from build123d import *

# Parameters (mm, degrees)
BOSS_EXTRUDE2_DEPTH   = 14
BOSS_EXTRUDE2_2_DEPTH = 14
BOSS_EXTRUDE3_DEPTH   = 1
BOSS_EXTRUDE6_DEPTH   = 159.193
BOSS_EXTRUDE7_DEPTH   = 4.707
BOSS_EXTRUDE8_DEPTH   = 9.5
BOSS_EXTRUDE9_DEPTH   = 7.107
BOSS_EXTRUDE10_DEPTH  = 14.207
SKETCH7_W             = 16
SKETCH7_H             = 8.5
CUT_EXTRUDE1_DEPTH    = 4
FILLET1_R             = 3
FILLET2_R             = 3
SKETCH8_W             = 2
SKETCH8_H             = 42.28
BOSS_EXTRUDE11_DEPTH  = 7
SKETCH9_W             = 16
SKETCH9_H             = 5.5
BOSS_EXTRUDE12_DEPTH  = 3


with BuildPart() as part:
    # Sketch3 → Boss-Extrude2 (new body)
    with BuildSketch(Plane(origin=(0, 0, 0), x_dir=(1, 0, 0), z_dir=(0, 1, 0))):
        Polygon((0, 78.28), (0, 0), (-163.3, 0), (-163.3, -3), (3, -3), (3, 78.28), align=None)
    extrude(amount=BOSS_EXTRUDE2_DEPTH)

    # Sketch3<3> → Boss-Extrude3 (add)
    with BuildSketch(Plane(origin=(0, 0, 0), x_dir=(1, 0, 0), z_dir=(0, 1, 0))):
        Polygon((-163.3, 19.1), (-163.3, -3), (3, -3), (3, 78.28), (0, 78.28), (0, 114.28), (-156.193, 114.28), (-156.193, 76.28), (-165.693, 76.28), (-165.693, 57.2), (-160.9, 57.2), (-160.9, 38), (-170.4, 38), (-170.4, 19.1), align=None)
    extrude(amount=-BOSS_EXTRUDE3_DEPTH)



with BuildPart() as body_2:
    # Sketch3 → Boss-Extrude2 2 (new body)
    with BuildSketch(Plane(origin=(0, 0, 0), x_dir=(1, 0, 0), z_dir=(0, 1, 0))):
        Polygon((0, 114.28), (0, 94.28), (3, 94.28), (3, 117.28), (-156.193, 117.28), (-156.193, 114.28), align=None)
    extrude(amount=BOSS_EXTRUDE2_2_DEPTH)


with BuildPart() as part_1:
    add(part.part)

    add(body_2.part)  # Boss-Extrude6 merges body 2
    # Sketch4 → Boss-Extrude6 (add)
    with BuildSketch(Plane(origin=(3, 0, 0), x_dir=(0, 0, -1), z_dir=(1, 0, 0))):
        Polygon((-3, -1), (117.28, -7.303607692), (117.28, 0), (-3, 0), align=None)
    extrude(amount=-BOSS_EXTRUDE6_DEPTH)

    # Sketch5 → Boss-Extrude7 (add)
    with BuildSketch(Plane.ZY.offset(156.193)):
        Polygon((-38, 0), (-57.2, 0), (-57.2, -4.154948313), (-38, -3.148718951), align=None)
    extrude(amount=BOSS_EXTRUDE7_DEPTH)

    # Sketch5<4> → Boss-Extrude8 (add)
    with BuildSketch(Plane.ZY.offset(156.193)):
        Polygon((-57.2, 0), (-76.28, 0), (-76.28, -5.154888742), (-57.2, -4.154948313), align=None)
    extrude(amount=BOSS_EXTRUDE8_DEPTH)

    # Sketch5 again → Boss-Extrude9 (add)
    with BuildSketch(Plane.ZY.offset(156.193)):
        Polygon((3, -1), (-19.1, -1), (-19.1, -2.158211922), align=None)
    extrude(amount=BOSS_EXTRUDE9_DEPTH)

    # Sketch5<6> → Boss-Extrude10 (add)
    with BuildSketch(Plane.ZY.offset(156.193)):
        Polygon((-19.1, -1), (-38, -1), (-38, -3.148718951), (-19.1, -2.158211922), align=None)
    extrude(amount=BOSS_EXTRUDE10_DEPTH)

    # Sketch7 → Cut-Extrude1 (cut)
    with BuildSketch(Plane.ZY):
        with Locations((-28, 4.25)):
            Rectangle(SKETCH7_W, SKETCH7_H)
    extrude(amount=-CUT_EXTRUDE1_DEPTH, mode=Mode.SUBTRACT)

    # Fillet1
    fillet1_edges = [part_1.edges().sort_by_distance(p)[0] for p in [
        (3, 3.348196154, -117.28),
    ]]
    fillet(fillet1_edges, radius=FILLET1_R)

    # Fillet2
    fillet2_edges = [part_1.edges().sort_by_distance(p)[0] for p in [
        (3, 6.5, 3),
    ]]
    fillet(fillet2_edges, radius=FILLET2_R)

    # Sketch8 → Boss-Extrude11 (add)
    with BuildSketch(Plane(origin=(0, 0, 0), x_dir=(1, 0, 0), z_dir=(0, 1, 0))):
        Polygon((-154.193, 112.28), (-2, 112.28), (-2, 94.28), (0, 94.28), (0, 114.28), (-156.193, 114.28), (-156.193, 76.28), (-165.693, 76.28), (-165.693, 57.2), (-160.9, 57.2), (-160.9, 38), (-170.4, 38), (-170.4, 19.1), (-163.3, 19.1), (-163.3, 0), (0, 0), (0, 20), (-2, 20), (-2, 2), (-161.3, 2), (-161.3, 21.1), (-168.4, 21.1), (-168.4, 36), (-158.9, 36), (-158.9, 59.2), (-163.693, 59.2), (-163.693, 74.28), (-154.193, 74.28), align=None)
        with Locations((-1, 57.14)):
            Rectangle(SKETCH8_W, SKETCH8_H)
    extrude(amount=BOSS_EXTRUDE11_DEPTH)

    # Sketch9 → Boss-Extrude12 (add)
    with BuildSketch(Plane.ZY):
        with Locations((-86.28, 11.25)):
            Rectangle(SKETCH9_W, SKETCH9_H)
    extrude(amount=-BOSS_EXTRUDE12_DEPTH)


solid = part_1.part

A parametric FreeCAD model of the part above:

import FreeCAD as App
import Part
import Sketcher

V = App.Vector
Q = App.Units.Quantity


def edges_at(feature, points):
    """Names of the edges that pass closest to the given points."""
    edges = feature.Shape.Edges
    near = lambda p: min(range(len(edges)), key=lambda i: edges[i].distToShape(Part.Vertex(*p))[0])
    return sorted({f"Edge{near(p) + 1}" for p in points})


def add_polygon(sketch, points):
    """Adds a closed chain of lines whose ends are joined by coincident constraints."""
    first, n = sketch.GeometryCount, len(points)
    for a, b in zip(points, points[1:] + points[:1]):
        sketch.addGeometry(Part.LineSegment(App.Vector(*a, 0), App.Vector(*b, 0)), False)
    for i in range(n):
        sketch.addConstraint(Sketcher.Constraint("Coincident", first + i, 2, first + (i + 1) % n, 1))

doc = App.newDocument("Part")
body = doc.addObject("PartDesign::Body", "Body")

# Sketch on XZ plane
sketch1 = doc.addObject("Sketcher::SketchObject", "Sketch")
body.addObject(sketch1)
sketch1.AttachmentSupport = (doc.XZ_Plane, [""])
sketch1.MapMode = "FlatFace"
add_polygon(sketch1, [(0, -78.3), (0, 0), (-163.3, 0), (-163.3, 3), (3, 3), (3, -78.3)])  # lines 0-5
sketch1.addConstraint(Sketcher.Constraint("Vertical", 0))
sketch1.addConstraint(Sketcher.Constraint("Horizontal", 1))
sketch1.addConstraint(Sketcher.Constraint("Vertical", 2))
sketch1.addConstraint(Sketcher.Constraint("Horizontal", 3))
sketch1.addConstraint(Sketcher.Constraint("Vertical", 4))
sketch1.addConstraint(Sketcher.Constraint("Horizontal", 5))
sketch1.addConstraint(Sketcher.Constraint("Coincident", 0, 2, -1, 1))
sketch1.addConstraint(Sketcher.Constraint("Equal", 5, 2))
sketch1.addConstraint(Sketcher.Constraint("DistanceX", 5, 2, 5, 1, 3.0))
sketch1.addConstraint(Sketcher.Constraint("DistanceX", 1, 2, 1, 1, 163.3))
sketch1.addConstraint(Sketcher.Constraint("DistanceY", 0, 1, 0, 2, 78.28))
pad1 = doc.addObject("PartDesign::Pad", "Pad")
body.addObject(pad1)
pad1.Profile = sketch1
pad1.Length = 14
pad1.Reversed = True

# Sketch on XZ plane
sketch2 = doc.addObject("Sketcher::SketchObject", "Sketch001")
body.addObject(sketch2)
sketch2.AttachmentSupport = (doc.XZ_Plane, [""])
sketch2.MapMode = "FlatFace"
add_polygon(sketch2, [(-163.3, -19.1), (-163.3, 3), (3, 3), (3, -78.3), (0, -78.3), (0, -114.3), (-156.2, -114.3), (-156.2, -76.3), (-165.7, -76.3), (-165.7, -57.2), (-160.9, -57.2), (-160.9, -38), (-170.4, -38), (-170.4, -19.1)])  # lines 0-13
sketch2.addConstraint(Sketcher.Constraint("Vertical", 0))
sketch2.addConstraint(Sketcher.Constraint("Horizontal", 1))
sketch2.addConstraint(Sketcher.Constraint("Vertical", 2))
sketch2.addConstraint(Sketcher.Constraint("Horizontal", 3))
sketch2.addConstraint(Sketcher.Constraint("Vertical", 4))
sketch2.addConstraint(Sketcher.Constraint("Horizontal", 5))
sketch2.addConstraint(Sketcher.Constraint("Vertical", 6))
sketch2.addConstraint(Sketcher.Constraint("Horizontal", 7))
sketch2.addConstraint(Sketcher.Constraint("Vertical", 8))
sketch2.addConstraint(Sketcher.Constraint("Horizontal", 9))
sketch2.addConstraint(Sketcher.Constraint("Vertical", 10))
sketch2.addConstraint(Sketcher.Constraint("Horizontal", 11))
sketch2.addConstraint(Sketcher.Constraint("Vertical", 12))
sketch2.addConstraint(Sketcher.Constraint("Horizontal", 13))
sketch2.addConstraint(Sketcher.Constraint("PointOnObject", 3, 2, -2))
sketch2.addConstraint(Sketcher.Constraint("Equal", 7, 11))
sketch2.addConstraint(Sketcher.Constraint("DistanceX", 3, 2, 3, 1, 3.0))
sketch2.addConstraint(Sketcher.Constraint("DistanceY", 4, 2, 4, 1, 36.0))
sketch2.addConstraint(Sketcher.Constraint("DistanceY", 6, 1, 6, 2, 38.0))
sketch2.addConstraint(Sketcher.Constraint("DistanceX", 1, 1, 1, 2, 166.3))
sketch2.addConstraint(Sketcher.Constraint("DistanceX", 7, 2, 7, 1, 9.5))
sketch2.addConstraint(Sketcher.Constraint("DistanceX", 13, 1, 13, 2, 7.1))
sketch2.addConstraint(Sketcher.Constraint("DistanceY", 0, 1, 0, 2, 22.1))
sketch2.addConstraint(Sketcher.Constraint("DistanceY", 10, 1, 10, 2, 19.2))
sketch2.addConstraint(Sketcher.Constraint("DistanceY", 12, 1, 12, 2, 18.9))
sketch2.addConstraint(Sketcher.Constraint("DistanceY", -1, 1, 0, 2, 3.0))
sketch2.addConstraint(Sketcher.Constraint("DistanceY", 2, 2, 2, 1, 81.28))
sketch2.addConstraint(Sketcher.Constraint("DistanceX", 5, 2, 5, 1, 156.193))
pad2 = doc.addObject("PartDesign::Pad", "Pad001")
body.addObject(pad2)
pad2.Profile = sketch2
pad2.Length = 1
body2 = doc.addObject("PartDesign::Body", "Body001")

# Sketch on XZ plane
sketch3 = doc.addObject("Sketcher::SketchObject", "Sketch002")
body2.addObject(sketch3)
sketch3.AttachmentSupport = (doc.getObject("XZ_Plane001"), [""])
sketch3.MapMode = "FlatFace"
add_polygon(sketch3, [(0, -114.3), (0, -94.3), (3, -94.3), (3, -117.3), (-156.2, -117.3), (-156.2, -114.3)])  # lines 0-5
sketch3.addConstraint(Sketcher.Constraint("Vertical", 0))
sketch3.addConstraint(Sketcher.Constraint("Horizontal", 1))
sketch3.addConstraint(Sketcher.Constraint("Vertical", 2))
sketch3.addConstraint(Sketcher.Constraint("Horizontal", 3))
sketch3.addConstraint(Sketcher.Constraint("Vertical", 4))
sketch3.addConstraint(Sketcher.Constraint("Horizontal", 5))
sketch3.addConstraint(Sketcher.Constraint("PointOnObject", 0, 2, -2))
sketch3.addConstraint(Sketcher.Constraint("Equal", 1, 4))
sketch3.addConstraint(Sketcher.Constraint("DistanceX", 1, 1, 1, 2, 3.0))
sketch3.addConstraint(Sketcher.Constraint("DistanceY", 0, 1, 0, 2, 20.0))
sketch3.addConstraint(Sketcher.Constraint("DistanceX", 3, 2, 3, 1, 159.193))
sketch3.addConstraint(Sketcher.Constraint("DistanceY", 0, 2, -1, 1, 94.28))
pad3 = doc.addObject("PartDesign::Pad", "Pad002")
body2.addObject(pad3)
pad3.Profile = sketch3
pad3.Length = 14
pad3.Reversed = True
body.AllowCompound = True
doc.recompute()

boolean = doc.addObject("PartDesign::Boolean", "Boolean")
body.addObject(boolean)
boolean.Type = "Fuse"
boolean.addObjects([body2])

# Sketch on YZ plane
sketch4 = doc.addObject("Sketcher::SketchObject", "Sketch003")
body.addObject(sketch4)
sketch4.AttachmentSupport = (doc.YZ_Plane, [""])
sketch4.MapMode = "FlatFace"
sketch4.AttachmentOffset = App.Placement(V(0, 0, 3), App.Rotation())
add_polygon(sketch4, [(-1, 3), (-7.3, -117.3), (0, -117.3), (0, 3)])  # lines 0-3
sketch4.addConstraint(Sketcher.Constraint("Horizontal", 1))
sketch4.addConstraint(Sketcher.Constraint("Vertical", 2))
sketch4.addConstraint(Sketcher.Constraint("Horizontal", 3))
sketch4.addConstraint(Sketcher.Constraint("PointOnObject", 1, 2, -2))
sketch4.addConstraint(Sketcher.Constraint("DistanceX", 3, 2, 3, 1, 1.0))
sketch4.addConstraint(Sketcher.Constraint("Angle", 0, Q("-93 deg")))
sketch4.addConstraint(Sketcher.Constraint("DistanceY", -1, 1, 2, 2, 3.0))
sketch4.addConstraint(Sketcher.Constraint("DistanceY", 2, 1, 2, 2, 120.28))
pad4 = doc.addObject("PartDesign::Pad", "Pad003")
body.addObject(pad4)
pad4.Profile = sketch4
pad4.Length = 159.193
pad4.Reversed = True

# Sketch on YZ plane
sketch5 = doc.addObject("Sketcher::SketchObject", "Sketch004")
body.addObject(sketch5)
sketch5.AttachmentSupport = (doc.YZ_Plane, [""])
sketch5.MapMode = "FlatFace"
sketch5.AttachmentOffset = App.Placement(V(0, 0, -156.193), App.Rotation())
add_polygon(sketch5, [(0, -38), (0, -57.2), (-4.2, -57.2), (-3.1, -38)])  # lines 0-3
sketch5.addConstraint(Sketcher.Constraint("Vertical", 0))
sketch5.addConstraint(Sketcher.Constraint("Horizontal", 1))
sketch5.addConstraint(Sketcher.Constraint("Horizontal", 3))
sketch5.addConstraint(Sketcher.Constraint("PointOnObject", 0, 2, -2))
sketch5.addConstraint(Sketcher.Constraint("Angle", 2, Q("87 deg")))
sketch5.addConstraint(Sketcher.Constraint("DistanceY", 0, 2, 0, 1, 19.2))
sketch5.addConstraint(Sketcher.Constraint("DistanceY", 2, 2, -1, 1, 38.0))
sketch5.addConstraint(Sketcher.Constraint("DistanceX", 1, 2, 1, 1, 4.154948))
pad5 = doc.addObject("PartDesign::Pad", "Pad004")
body.addObject(pad5)
pad5.Profile = sketch5
pad5.Length = 4.707
pad5.Reversed = True

# Sketch on YZ plane
sketch6 = doc.addObject("Sketcher::SketchObject", "Sketch005")
body.addObject(sketch6)
sketch6.AttachmentSupport = (doc.YZ_Plane, [""])
sketch6.MapMode = "FlatFace"
sketch6.AttachmentOffset = App.Placement(V(0, 0, -156.193), App.Rotation())
add_polygon(sketch6, [(0, -57.2), (0, -76.3), (-5.2, -76.3), (-4.2, -57.2)])  # lines 0-3
sketch6.addConstraint(Sketcher.Constraint("Vertical", 0))
sketch6.addConstraint(Sketcher.Constraint("Horizontal", 1))
sketch6.addConstraint(Sketcher.Constraint("Horizontal", 3))
sketch6.addConstraint(Sketcher.Constraint("PointOnObject", 0, 2, -2))
sketch6.addConstraint(Sketcher.Constraint("Angle", 2, Q("87 deg")))
sketch6.addConstraint(Sketcher.Constraint("DistanceY", 0, 2, 0, 1, 19.08))
sketch6.addConstraint(Sketcher.Constraint("DistanceY", 2, 2, -1, 1, 57.2))
sketch6.addConstraint(Sketcher.Constraint("DistanceX", 1, 2, 1, 1, 5.154889))
pad6 = doc.addObject("PartDesign::Pad", "Pad005")
body.addObject(pad6)
pad6.Profile = sketch6
pad6.Length = 9.5
pad6.Reversed = True

# Sketch on YZ plane
sketch7 = doc.addObject("Sketcher::SketchObject", "Sketch006")
body.addObject(sketch7)
sketch7.AttachmentSupport = (doc.YZ_Plane, [""])
sketch7.MapMode = "FlatFace"
sketch7.AttachmentOffset = App.Placement(V(0, 0, -156.193), App.Rotation())
add_polygon(sketch7, [(-1, 3), (-1, -19.1), (-2.2, -19.1)])  # lines 0-2
sketch7.addConstraint(Sketcher.Constraint("Vertical", 0))
sketch7.addConstraint(Sketcher.Constraint("Horizontal", 1))
sketch7.addConstraint(Sketcher.Constraint("Angle", 2, Q("87 deg")))
sketch7.addConstraint(Sketcher.Constraint("DistanceY", 0, 2, 0, 1, 22.1))
sketch7.addConstraint(Sketcher.Constraint("DistanceX", 0, 2, -1, 1, 1.0))
sketch7.addConstraint(Sketcher.Constraint("DistanceY", -1, 1, 2, 2, 3.0))
pad7 = doc.addObject("PartDesign::Pad", "Pad006")
body.addObject(pad7)
pad7.Profile = sketch7
pad7.Length = 7.107
pad7.Reversed = True

# Sketch on YZ plane
sketch8 = doc.addObject("Sketcher::SketchObject", "Sketch007")
body.addObject(sketch8)
sketch8.AttachmentSupport = (doc.YZ_Plane, [""])
sketch8.MapMode = "FlatFace"
sketch8.AttachmentOffset = App.Placement(V(0, 0, -156.193), App.Rotation())
add_polygon(sketch8, [(-1, -19.1), (-1, -38), (-3.1, -38), (-2.2, -19.1)])  # lines 0-3
sketch8.addConstraint(Sketcher.Constraint("Vertical", 0))
sketch8.addConstraint(Sketcher.Constraint("Horizontal", 1))
sketch8.addConstraint(Sketcher.Constraint("Horizontal", 3))
sketch8.addConstraint(Sketcher.Constraint("Angle", 2, Q("87 deg")))
sketch8.addConstraint(Sketcher.Constraint("DistanceY", 0, 2, 0, 1, 18.9))
sketch8.addConstraint(Sketcher.Constraint("DistanceX", 0, 2, -1, 1, 1.0))
sketch8.addConstraint(Sketcher.Constraint("DistanceY", 0, 2, -1, 1, 38.0))
sketch8.addConstraint(Sketcher.Constraint("DistanceX", 1, 2, 1, 1, 2.148719))
pad8 = doc.addObject("PartDesign::Pad", "Pad007")
body.addObject(pad8)
pad8.Profile = sketch8
pad8.Length = 14.207
pad8.Reversed = True

# Sketch on YZ plane
sketch9 = doc.addObject("Sketcher::SketchObject", "Sketch008")
body.addObject(sketch9)
sketch9.AttachmentSupport = (doc.YZ_Plane, [""])
sketch9.MapMode = "FlatFace"
add_polygon(sketch9, [(8, -36), (0, -36), (0, -20), (8, -20)])  # lines 0-3
sketch9.addConstraint(Sketcher.Constraint("Horizontal", 0))
sketch9.addConstraint(Sketcher.Constraint("Vertical", 1))
sketch9.addConstraint(Sketcher.Constraint("Horizontal", 2))
sketch9.addConstraint(Sketcher.Constraint("Vertical", 3))
sketch9.addConstraint(Sketcher.Constraint("PointOnObject", 0, 2, -2))
sketch9.addConstraint(Sketcher.Constraint("DistanceY", 1, 1, 1, 2, 16.0))
sketch9.addConstraint(Sketcher.Constraint("DistanceX", 0, 2, 0, 1, 8.5))
sketch9.addConstraint(Sketcher.Constraint("DistanceY", 0, 2, -1, 1, 36.0))
pocket1 = doc.addObject("PartDesign::Pocket", "Pocket")
body.addObject(pocket1)
pocket1.Profile = sketch9
pocket1.Length = 4
pocket1.Reversed = True
doc.recompute()

fillet = doc.addObject("PartDesign::Fillet", "Fillet")
body.addObject(fillet)
fillet.Base = (pocket1, edges_at(pocket1, [(3, 3.348, -117.28)]))
fillet.Radius = 3
doc.recompute()

fillet2 = doc.addObject("PartDesign::Fillet", "Fillet001")
body.addObject(fillet2)
fillet2.Base = (fillet, edges_at(fillet, [(3, 6.5, 3)]))
fillet2.Radius = 3

# Sketch on XZ plane
sketch10 = doc.addObject("Sketcher::SketchObject", "Sketch009")
body.addObject(sketch10)
sketch10.AttachmentSupport = (doc.XZ_Plane, [""])
sketch10.MapMode = "FlatFace"
add_polygon(sketch10, [(-154.2, -112.3), (-2, -112.3), (-2, -94.3), (0, -94.3), (0, -114.3), (-156.2, -114.3), (-156.2, -76.3), (-165.7, -76.3), (-165.7, -57.2), (-160.9, -57.2), (-160.9, -38), (-170.4, -38), (-170.4, -19.1), (-163.3, -19.1), (-163.3, 0), (0, 0), (0, -20), (-2, -20), (-2, -2), (-161.3, -2), (-161.3, -21.1), (-168.4, -21.1), (-168.4, -36), (-158.9, -36), (-158.9, -59.2), (-163.7, -59.2), (-163.7, -74.3), (-154.2, -74.3)])  # lines 0-27
add_polygon(sketch10, [(-2, -78.3), (-2, -36), (0, -36), (0, -78.3)])  # lines 28-31
sketch10.addConstraint(Sketcher.Constraint("Horizontal", 0))
sketch10.addConstraint(Sketcher.Constraint("Vertical", 1))
sketch10.addConstraint(Sketcher.Constraint("Horizontal", 2))
sketch10.addConstraint(Sketcher.Constraint("Vertical", 3))
sketch10.addConstraint(Sketcher.Constraint("Horizontal", 4))
sketch10.addConstraint(Sketcher.Constraint("Vertical", 5))
sketch10.addConstraint(Sketcher.Constraint("Horizontal", 6))
sketch10.addConstraint(Sketcher.Constraint("Vertical", 7))
sketch10.addConstraint(Sketcher.Constraint("Horizontal", 8))
sketch10.addConstraint(Sketcher.Constraint("Vertical", 9))
sketch10.addConstraint(Sketcher.Constraint("Horizontal", 10))
sketch10.addConstraint(Sketcher.Constraint("Vertical", 11))
sketch10.addConstraint(Sketcher.Constraint("Horizontal", 12))
sketch10.addConstraint(Sketcher.Constraint("Vertical", 13))
sketch10.addConstraint(Sketcher.Constraint("Horizontal", 14))
sketch10.addConstraint(Sketcher.Constraint("Vertical", 15))
sketch10.addConstraint(Sketcher.Constraint("Horizontal", 16))
sketch10.addConstraint(Sketcher.Constraint("Vertical", 17))
sketch10.addConstraint(Sketcher.Constraint("Horizontal", 18))
sketch10.addConstraint(Sketcher.Constraint("Vertical", 19))
sketch10.addConstraint(Sketcher.Constraint("Horizontal", 20))
sketch10.addConstraint(Sketcher.Constraint("Vertical", 21))
sketch10.addConstraint(Sketcher.Constraint("Horizontal", 22))
sketch10.addConstraint(Sketcher.Constraint("Vertical", 23))
sketch10.addConstraint(Sketcher.Constraint("Horizontal", 24))
sketch10.addConstraint(Sketcher.Constraint("Vertical", 25))
sketch10.addConstraint(Sketcher.Constraint("Horizontal", 26))
sketch10.addConstraint(Sketcher.Constraint("Vertical", 27))
sketch10.addConstraint(Sketcher.Constraint("Vertical", 28))
sketch10.addConstraint(Sketcher.Constraint("Horizontal", 29))
sketch10.addConstraint(Sketcher.Constraint("Vertical", 30))
sketch10.addConstraint(Sketcher.Constraint("Horizontal", 31))
sketch10.addConstraint(Sketcher.Constraint("Coincident", 14, 2, -1, 1))
sketch10.addConstraint(Sketcher.Constraint("PointOnObject", 2, 2, -2))
sketch10.addConstraint(Sketcher.Constraint("PointOnObject", 29, 2, -2))
sketch10.addConstraint(Sketcher.Constraint("Horizontal", 22, 2, 28, 2))
sketch10.addConstraint(Sketcher.Constraint("Vertical", 1, 2, 16, 2))
sketch10.addConstraint(Sketcher.Constraint("Vertical", 17, 2, 28, 2))
sketch10.addConstraint(Sketcher.Constraint("Equal", 6, 10))
sketch10.addConstraint(Sketcher.Constraint("Equal", 12, 20))
sketch10.addConstraint(Sketcher.Constraint("Equal", 10, 22))
sketch10.addConstraint(Sketcher.Constraint("Equal", 8, 24))
sketch10.addConstraint(Sketcher.Constraint("Equal", 22, 26))
sketch10.addConstraint(Sketcher.Constraint("Equal", 3, 15))
sketch10.addConstraint(Sketcher.Constraint("Equal", 1, 17))
sketch10.addConstraint(Sketcher.Constraint("Equal", 13, 19))
sketch10.addConstraint(Sketcher.Constraint("Equal", 5, 27))
sketch10.addConstraint(Sketcher.Constraint("DistanceX", 2, 1, 2, 2, 2.0))
sketch10.addConstraint(Sketcher.Constraint("DistanceY", 1, 1, 1, 2, 18.0))
sketch10.addConstraint(Sketcher.Constraint("DistanceY", 3, 2, 3, 1, 20.0))
sketch10.addConstraint(Sketcher.Constraint("DistanceY", 5, 1, 5, 2, 38.0))
sketch10.addConstraint(Sketcher.Constraint("DistanceX", 6, 2, 6, 1, 9.5))
sketch10.addConstraint(Sketcher.Constraint("DistanceX", 12, 1, 12, 2, 7.1))
sketch10.addConstraint(Sketcher.Constraint("DistanceX", 14, 1, 14, 2, 163.3))
sketch10.addConstraint(Sketcher.Constraint("DistanceX", 18, 2, 18, 1, 159.3))
sketch10.addConstraint(Sketcher.Constraint("DistanceY", 9, 1, 9, 2, 19.2))
sketch10.addConstraint(Sketcher.Constraint("DistanceY", 11, 1, 11, 2, 18.9))
sketch10.addConstraint(Sketcher.Constraint("DistanceY", 13, 1, 13, 2, 19.1))
sketch10.addConstraint(Sketcher.Constraint("DistanceY", 21, 2, 21, 1, 14.9))
sketch10.addConstraint(Sketcher.Constraint("DistanceY", 23, 2, 23, 1, 23.2))
sketch10.addConstraint(Sketcher.Constraint("DistanceY", 2, 2, 30, 2, 16.0))
sketch10.addConstraint(Sketcher.Constraint("DistanceY", 7, 1, 7, 2, 19.08))
sketch10.addConstraint(Sketcher.Constraint("DistanceX", 0, 1, 0, 2, 152.193))
pad9 = doc.addObject("PartDesign::Pad", "Pad008")
body.addObject(pad9)
pad9.Profile = sketch10
pad9.Length = 7
pad9.Reversed = True

# Sketch on YZ plane
sketch11 = doc.addObject("Sketcher::SketchObject", "Sketch010")
body.addObject(sketch11)
sketch11.AttachmentSupport = (doc.YZ_Plane, [""])
sketch11.MapMode = "FlatFace"
add_polygon(sketch11, [(14, -94), (8, -94), (8, -78), (14, -78)])  # lines 0-3
sketch11.addConstraint(Sketcher.Constraint("Horizontal", 0))
sketch11.addConstraint(Sketcher.Constraint("Vertical", 1))
sketch11.addConstraint(Sketcher.Constraint("Horizontal", 2))
sketch11.addConstraint(Sketcher.Constraint("Vertical", 3))
sketch11.addConstraint(Sketcher.Constraint("DistanceY", 1, 1, 1, 2, 16.0))
sketch11.addConstraint(Sketcher.Constraint("DistanceX", 0, 2, 0, 1, 5.5))
sketch11.addConstraint(Sketcher.Constraint("DistanceX", -1, 1, 2, 2, 14.0))
sketch11.addConstraint(Sketcher.Constraint("DistanceY", 0, 2, -1, 1, 94.28))
pad10 = doc.addObject("PartDesign::Pad", "Pad009")
body.addObject(pad10)
pad10.Profile = sketch11
pad10.Length = 3

doc.recompute()
